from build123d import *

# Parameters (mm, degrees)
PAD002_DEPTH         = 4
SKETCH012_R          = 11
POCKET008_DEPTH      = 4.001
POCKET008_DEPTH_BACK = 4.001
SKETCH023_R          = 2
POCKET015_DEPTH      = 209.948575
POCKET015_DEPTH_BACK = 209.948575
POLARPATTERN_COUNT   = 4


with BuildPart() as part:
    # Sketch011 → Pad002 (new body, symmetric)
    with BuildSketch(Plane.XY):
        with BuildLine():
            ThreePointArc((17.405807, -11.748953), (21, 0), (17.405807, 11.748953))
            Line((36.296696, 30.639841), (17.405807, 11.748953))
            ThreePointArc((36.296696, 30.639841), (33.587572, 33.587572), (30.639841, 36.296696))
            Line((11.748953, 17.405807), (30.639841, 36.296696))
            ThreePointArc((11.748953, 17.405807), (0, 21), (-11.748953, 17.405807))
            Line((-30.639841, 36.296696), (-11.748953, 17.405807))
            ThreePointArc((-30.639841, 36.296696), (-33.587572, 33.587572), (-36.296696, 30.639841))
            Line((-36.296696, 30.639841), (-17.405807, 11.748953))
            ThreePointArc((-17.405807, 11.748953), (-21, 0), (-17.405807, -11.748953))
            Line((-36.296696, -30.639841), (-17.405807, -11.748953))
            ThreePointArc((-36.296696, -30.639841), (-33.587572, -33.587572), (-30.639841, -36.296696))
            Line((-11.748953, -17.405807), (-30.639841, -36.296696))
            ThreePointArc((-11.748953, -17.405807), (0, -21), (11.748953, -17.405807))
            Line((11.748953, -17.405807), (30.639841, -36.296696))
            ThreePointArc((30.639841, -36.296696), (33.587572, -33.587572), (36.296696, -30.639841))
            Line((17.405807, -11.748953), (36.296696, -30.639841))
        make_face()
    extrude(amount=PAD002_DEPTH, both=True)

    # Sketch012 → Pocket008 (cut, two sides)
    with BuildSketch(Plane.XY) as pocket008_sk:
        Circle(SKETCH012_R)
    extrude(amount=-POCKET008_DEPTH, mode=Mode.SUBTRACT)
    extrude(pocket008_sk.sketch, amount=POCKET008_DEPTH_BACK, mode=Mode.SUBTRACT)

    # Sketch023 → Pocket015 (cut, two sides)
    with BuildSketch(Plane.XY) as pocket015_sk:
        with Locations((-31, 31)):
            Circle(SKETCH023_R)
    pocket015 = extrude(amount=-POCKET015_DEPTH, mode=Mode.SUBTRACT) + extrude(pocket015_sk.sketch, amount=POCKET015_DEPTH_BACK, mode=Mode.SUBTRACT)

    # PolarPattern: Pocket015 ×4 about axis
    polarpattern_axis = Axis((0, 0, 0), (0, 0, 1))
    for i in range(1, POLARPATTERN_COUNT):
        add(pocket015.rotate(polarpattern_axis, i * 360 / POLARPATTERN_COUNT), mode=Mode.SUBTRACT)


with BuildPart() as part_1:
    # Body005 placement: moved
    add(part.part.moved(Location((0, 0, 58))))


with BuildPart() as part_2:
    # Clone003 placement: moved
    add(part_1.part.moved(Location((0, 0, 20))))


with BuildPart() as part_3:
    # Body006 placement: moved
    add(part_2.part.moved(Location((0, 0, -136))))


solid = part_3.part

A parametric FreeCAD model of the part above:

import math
import FreeCAD as App
import Part
import Sketcher
from FreeCAD import Vector

doc = App.newDocument("Part")
body = doc.addObject("PartDesign::Body", "Body")

# Sketch on XY plane
sketch1 = body.newObject("Sketcher::SketchObject", "Sketch")
sketch1.AttachmentSupport = (doc.getObject("XY_Plane"), [""])
sketch1.MapMode = "FlatFace"
sketch1.addGeometry([
    Part.ArcOfCircle(Part.Circle(Vector(-0.000002, 0, 0), Vector(0, 0, 1), 21.000002), math.radians(-34.019422), math.radians(34.019422)),  # 0
    Part.LineSegment(Vector(17.405807, 11.748953, 0), Vector(36.296696, 30.639841, 0)),  # 1
    Part.ArcOfCircle(Part.Circle(Vector(-0.000024, -0.000024, 0), Vector(0, 0, 1), 47.500033), math.radians(40.169374), math.radians(49.830626)),  # 2
    Part.LineSegment(Vector(30.639841, 36.296696, 0), Vector(11.748953, 17.405807, 0)),  # 3
    Part.ArcOfCircle(Part.Circle(Vector(0, -0.000002, 0), Vector(0, 0, 1), 21.000002), math.radians(55.980578), math.radians(124.019422)),  # 4
    Part.LineSegment(Vector(-11.748953, 17.405807, 0), Vector(-30.639841, 36.296696, 0)),  # 5
    Part.ArcOfCircle(Part.Circle(Vector(0.000024, -0.000024, 0), Vector(0, 0, 1), 47.500033), math.radians(130.169374), math.radians(139.830626)),  # 6
    Part.LineSegment(Vector(-36.296696, 30.639841, 0), Vector(-17.405807, 11.748953, 0)),  # 7
    Part.ArcOfCircle(Part.Circle(Vector(0.000002, 0, 0), Vector(0, 0, 1), 21.000002), math.radians(145.980578), math.radians(214.019422)),  # 8
    Part.LineSegment(Vector(-17.405807, -11.748953, 0), Vector(-36.296696, -30.639841, 0)),  # 9
    Part.ArcOfCircle(Part.Circle(Vector(0.000024, 0.000024, 0), Vector(0, 0, 1), 47.500033), math.radians(-139.830626), math.radians(-130.169374)),  # 10
    Part.LineSegment(Vector(-30.639841, -36.296696, 0), Vector(-11.748953, -17.405807, 0)),  # 11
    Part.ArcOfCircle(Part.Circle(Vector(0, 0.000002, 0), Vector(0, 0, 1), 21.000002), math.radians(-124.019422), math.radians(-55.980578)),  # 12
    Part.LineSegment(Vector(11.748953, -17.405807, 0), Vector(30.639841, -36.296696, 0)),  # 13
    Part.ArcOfCircle(Part.Circle(Vector(-0.000024, 0.000024, 0), Vector(0, 0, 1), 47.500033), math.radians(-49.830626), math.radians(-40.169374)),  # 14
    Part.LineSegment(Vector(36.296696, -30.639841, 0), Vector(17.405807, -11.748953, 0)),  # 15
], False)
sketch1.addConstraint([
    Sketcher.Constraint("Coincident", 0, 2, 1, 1),
    Sketcher.Constraint("Coincident", 1, 2, 2, 1),
    Sketcher.Constraint("Coincident", 2, 2, 3, 1),
    Sketcher.Constraint("Coincident", 3, 2, 4, 1),
    Sketcher.Constraint("Coincident", 4, 2, 5, 1),
    Sketcher.Constraint("Coincident", 5, 2, 6, 1),
    Sketcher.Constraint("Coincident", 6, 2, 7, 1),
    Sketcher.Constraint("Coincident", 7, 2, 8, 1),
    Sketcher.Constraint("Coincident", 8, 2, 9, 1),
    Sketcher.Constraint("Coincident", 9, 2, 10, 1),
    Sketcher.Constraint("Coincident", 10, 2, 11, 1),
    Sketcher.Constraint("Coincident", 11, 2, 12, 1),
    Sketcher.Constraint("Coincident", 12, 2, 13, 1),
    Sketcher.Constraint("Coincident", 13, 2, 14, 1),
    Sketcher.Constraint("Coincident", 14, 2, 15, 1),
    Sketcher.Constraint("Coincident", 15, 2, 0, 1),
    Sketcher.Constraint("Coincident", 0, 3, -1, 1),
    Sketcher.Constraint("Coincident", 4, 3, -1, 1),
    Sketcher.Constraint("Coincident", 8, 3, -1, 1),
    Sketcher.Constraint("Coincident", 12, 3, -1, 1),
    Sketcher.Constraint("Equal", 0, 4),
    Sketcher.Constraint("Equal", 2, 6),
    Sketcher.Constraint("Equal", 4, 8),
    Sketcher.Constraint("Equal", 6, 10),
    Sketcher.Constraint("Equal", 8, 12),
    Sketcher.Constraint("Equal", 10, 14),
    Sketcher.Constraint("Symmetric", 2, 3, 10, 3, -1, 1),
    Sketcher.Constraint("Symmetric", 6, 3, 14, 3, -1, 1),
    Sketcher.Constraint("Symmetric", 2, 3, 6, 3, -2),
    Sketcher.Constraint("Parallel", 1, 3),
    Sketcher.Constraint("Perpendicular", 3, 5),
    Sketcher.Constraint("Parallel", 5, 7),
    Sketcher.Constraint("Perpendicular", 7, 9),
    Sketcher.Constraint("Parallel", 9, 11),
    Sketcher.Constraint("Perpendicular", 11, 13),
    Sketcher.Constraint("Parallel", 13, 15),
    Sketcher.Constraint("Horizontal", 3, 2, 4, 2),
    Sketcher.Constraint("Horizontal", 2, 2, 5, 2),
    Sketcher.Constraint("Horizontal", 1, 2, 6, 2),
    Sketcher.Constraint("Horizontal", 11, 2, 12, 2),
    Sketcher.Constraint("Horizontal", 9, 2, 14, 2),
    Sketcher.Constraint("Vertical", 7, 2, 8, 2),
    Sketcher.Constraint("Vertical", 5, 2, 10, 2),
    Sketcher.Constraint("Equal", 1, 3),
    Sketcher.Constraint("Radius", 0, 21.000002),
    Sketcher.Constraint("Radius", 2, 47.500033),
    Sketcher.Constraint("Distance", 1, 26.715751),
    Sketcher.Constraint("DistanceY", -1, 1, 1, 2, 30.639841),
    Sketcher.Constraint("DistanceX", -1, 1, 2, 2, 30.639841),
])
pad1 = body.newObject("PartDesign::Pad", "Pad")
pad1.Profile = sketch1
pad1.Length = 8
pad1.Midplane = True

# Sketch on XY plane
sketch2 = body.newObject("Sketcher::SketchObject", "Sketch001")
sketch2.AttachmentSupport = (doc.getObject("XY_Plane"), [""])
sketch2.MapMode = "FlatFace"
sketch2.addGeometry(Part.Circle(Vector(0, 0, 0), Vector(0, 0, 1), 11), False)
sketch2.addConstraint([
    Sketcher.Constraint("Coincident", 0, 3, -1, 1),
    Sketcher.Constraint("Diameter", 0, 22.0),
])
pocket1 = body.newObject("PartDesign::Pocket", "Pocket")
pocket1.Profile = sketch2
pocket1.Type = "ThroughAll"
pocket1.Midplane = True

# Sketch on XY plane
sketch3 = body.newObject("Sketcher::SketchObject", "Sketch002")
sketch3.AttachmentSupport = (doc.getObject("XY_Plane"), [""])
sketch3.MapMode = "FlatFace"
sketch3.addGeometry(Part.Circle(Vector(-31, 31, 0), Vector(0, 0, 1), 2), False)
sketch3.addConstraint([
    Sketcher.Constraint("Diameter", 0, 4.0),
    Sketcher.Constraint("DistanceX", 0, 3, -1, 1, 31.0),
    Sketcher.Constraint("DistanceY", -1, 1, 0, 3, 31.0),
])
pocket2 = body.newObject("PartDesign::Pocket", "Pocket001")
pocket2.Profile = sketch3
pocket2.Type = "ThroughAll"
pocket2.Midplane = True
doc.recompute()

polarpattern = body.newObject("PartDesign::PolarPattern", "PolarPattern")
polarpattern.Originals = [pocket2]
polarpattern.Axis = (doc.getObject("Z_Axis"), [""])
polarpattern.Angle = 360
polarpattern.Occurrences = 4
body.Tip = polarpattern
body2 = doc.addObject("PartDesign::Body", "Body001")
doc.recompute()

body.Placement = App.Placement(Vector(0, 0, 58), App.Rotation(Vector(0, 0, 1), 0))
boolean = body2.newObject("PartDesign::Boolean", "Boolean")
boolean.Type = "Fuse"
boolean.addObjects([body])
body3 = doc.addObject("PartDesign::Body", "Body002")
doc.recompute()

body2.Placement = App.Placement(Vector(0, 0, 20), App.Rotation(Vector(0, 0, 1), 0))
boolean2 = body3.newObject("PartDesign::Boolean", "Boolean001")
boolean2.Type = "Fuse"
boolean2.addObjects([body2])
body4 = doc.addObject("PartDesign::Body", "Body003")
doc.recompute()

body3.Placement = App.Placement(Vector(0, 0, -136), App.Rotation(Vector(0, 0, 1), 0))
boolean3 = body4.newObject("PartDesign::Boolean", "Boolean002")
boolean3.Type = "Fuse"
boolean3.addObjects([body3])

doc.recompute()
